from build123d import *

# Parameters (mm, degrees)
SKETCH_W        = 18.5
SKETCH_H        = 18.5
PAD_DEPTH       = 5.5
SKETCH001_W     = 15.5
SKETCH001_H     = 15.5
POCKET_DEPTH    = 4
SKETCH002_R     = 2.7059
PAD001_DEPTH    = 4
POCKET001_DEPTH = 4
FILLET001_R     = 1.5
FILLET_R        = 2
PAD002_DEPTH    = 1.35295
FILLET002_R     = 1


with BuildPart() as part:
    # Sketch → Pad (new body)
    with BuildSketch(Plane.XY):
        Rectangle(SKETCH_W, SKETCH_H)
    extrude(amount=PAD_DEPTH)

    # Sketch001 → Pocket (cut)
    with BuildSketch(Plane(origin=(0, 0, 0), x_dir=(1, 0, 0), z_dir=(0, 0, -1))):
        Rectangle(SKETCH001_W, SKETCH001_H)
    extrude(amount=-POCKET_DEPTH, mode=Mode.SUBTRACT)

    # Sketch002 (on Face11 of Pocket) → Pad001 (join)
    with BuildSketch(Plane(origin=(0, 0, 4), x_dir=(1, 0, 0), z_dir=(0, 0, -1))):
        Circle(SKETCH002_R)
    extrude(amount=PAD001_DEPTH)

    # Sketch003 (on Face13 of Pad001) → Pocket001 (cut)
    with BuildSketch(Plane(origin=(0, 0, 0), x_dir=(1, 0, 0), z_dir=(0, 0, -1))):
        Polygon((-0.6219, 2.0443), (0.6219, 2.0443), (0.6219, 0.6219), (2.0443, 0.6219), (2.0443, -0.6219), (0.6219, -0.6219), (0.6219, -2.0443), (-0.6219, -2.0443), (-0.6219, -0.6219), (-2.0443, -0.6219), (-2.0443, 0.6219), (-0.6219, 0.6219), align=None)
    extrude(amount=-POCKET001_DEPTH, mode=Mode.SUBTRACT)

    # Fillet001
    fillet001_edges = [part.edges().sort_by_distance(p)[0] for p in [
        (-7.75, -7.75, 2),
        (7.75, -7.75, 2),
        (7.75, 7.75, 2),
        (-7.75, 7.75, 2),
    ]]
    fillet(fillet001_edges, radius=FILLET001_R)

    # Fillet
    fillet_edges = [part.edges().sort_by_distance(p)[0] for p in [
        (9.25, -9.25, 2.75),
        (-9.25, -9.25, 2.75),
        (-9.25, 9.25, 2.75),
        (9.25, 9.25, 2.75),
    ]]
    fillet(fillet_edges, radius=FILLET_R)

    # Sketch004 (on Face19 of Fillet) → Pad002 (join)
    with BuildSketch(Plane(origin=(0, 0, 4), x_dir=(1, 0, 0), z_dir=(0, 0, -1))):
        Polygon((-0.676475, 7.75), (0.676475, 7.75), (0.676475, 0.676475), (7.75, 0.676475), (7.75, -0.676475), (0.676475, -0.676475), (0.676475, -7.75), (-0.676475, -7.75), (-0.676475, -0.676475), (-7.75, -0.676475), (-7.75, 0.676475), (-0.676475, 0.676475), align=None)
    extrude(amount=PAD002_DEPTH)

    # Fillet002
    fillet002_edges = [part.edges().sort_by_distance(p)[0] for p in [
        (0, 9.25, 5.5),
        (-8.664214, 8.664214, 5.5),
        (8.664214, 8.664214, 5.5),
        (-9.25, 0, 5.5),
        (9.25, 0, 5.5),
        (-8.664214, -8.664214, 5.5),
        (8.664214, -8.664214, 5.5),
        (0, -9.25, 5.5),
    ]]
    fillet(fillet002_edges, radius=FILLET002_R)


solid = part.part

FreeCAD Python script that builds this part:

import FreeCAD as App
import Part
import Sketcher
from FreeCAD import Vector
Q = App.Units.Quantity


def edges_at(feature, points):
    """Names of the edges that pass closest to the given points."""
    edges = feature.Shape.Edges
    near = lambda p: min(range(len(edges)), key=lambda i: edges[i].distToShape(Part.Vertex(*p))[0])
    return sorted({f"Edge{near(p) + 1}" for p in points})

doc = App.newDocument("Part")
body = doc.addObject("PartDesign::Body", "Body")

# Sketch on XY plane
sketch1 = body.newObject("Sketcher::SketchObject", "Sketch")
sketch1.AttachmentSupport = (doc.getObject("XY_Plane"), [""])
sketch1.MapMode = "FlatFace"
sketch1.addGeometry(Part.LineSegment(Vector(-9.25, 9.25, 0), Vector(-9.25, -9.25, 0)), False)
sketch1.addGeometry(Part.LineSegment(Vector(-9.25, -9.25, 0), Vector(9.25, -9.25, 0)), False)
sketch1.addGeometry(Part.LineSegment(Vector(9.25, -9.25, 0), Vector(9.25, 9.25, 0)), False)
sketch1.addGeometry(Part.LineSegment(Vector(9.25, 9.25, 0), Vector(-9.25, 9.25, 0)), False)
sketch1.addConstraint(Sketcher.Constraint("Coincident", 0, 2, 1, 1))
sketch1.addConstraint(Sketcher.Constraint("Coincident", 1, 2, 2, 1))
sketch1.addConstraint(Sketcher.Constraint("Coincident", 2, 2, 3, 1))
sketch1.addConstraint(Sketcher.Constraint("Coincident", 3, 2, 0, 1))
sketch1.addConstraint(Sketcher.Constraint("Vertical", 0))
sketch1.addConstraint(Sketcher.Constraint("Horizontal", 1))
sketch1.addConstraint(Sketcher.Constraint("Vertical", 2))
sketch1.addConstraint(Sketcher.Constraint("Horizontal", 3))
sketch1.addConstraint(Sketcher.Constraint("Symmetric", 0, 2, 2, 2, -1, 1))
sketch1.addConstraint(Sketcher.Constraint("Equal", 3, 0))
sketch1.addConstraint(Sketcher.Constraint("DistanceX", 1, 1, 1, 2, Q("18.5 mm")))
pad1 = body.newObject("PartDesign::Pad", "Pad")
pad1.Profile = sketch1
pad1.Length = 5.5

# Sketch on XY plane
sketch2 = body.newObject("Sketcher::SketchObject", "Sketch001")
sketch2.AttachmentSupport = (doc.getObject("XY_Plane"), [""])
sketch2.MapMode = "FlatFace"
sketch2.addGeometry(Part.LineSegment(Vector(-7.75, -7.75, 0), Vector(-7.75, 7.75, 0)), False)
sketch2.addGeometry(Part.LineSegment(Vector(-7.75, 7.75, 0), Vector(7.75, 7.75, 0)), False)
sketch2.addGeometry(Part.LineSegment(Vector(7.75, 7.75, 0), Vector(7.75, -7.75, 0)), False)
sketch2.addGeometry(Part.LineSegment(Vector(7.75, -7.75, 0), Vector(-7.75, -7.75, 0)), False)
sketch2.addConstraint(Sketcher.Constraint("Coincident", 0, 2, 1, 1))
sketch2.addConstraint(Sketcher.Constraint("Coincident", 1, 2, 2, 1))
sketch2.addConstraint(Sketcher.Constraint("Coincident", 2, 2, 3, 1))
sketch2.addConstraint(Sketcher.Constraint("Coincident", 3, 2, 0, 1))
sketch2.addConstraint(Sketcher.Constraint("Vertical", 0))
sketch2.addConstraint(Sketcher.Constraint("Horizontal", 1))
sketch2.addConstraint(Sketcher.Constraint("Vertical", 2))
sketch2.addConstraint(Sketcher.Constraint("Horizontal", 3))
sketch2.addConstraint(Sketcher.Constraint("Symmetric", 0, 2, 2, 2, -1, 1))
sketch2.addConstraint(Sketcher.Constraint("Equal", 3, 0))
sketch2.addConstraint(Sketcher.Constraint("DistanceX", 1, 1, 1, 2, Q("15.5 mm")))
pocket1 = body.newObject("PartDesign::Pocket", "Pocket")
pocket1.Profile = sketch2
pocket1.Length = 4
pocket1.Reversed = True

# Sketch on XY plane
sketch3 = body.newObject("Sketcher::SketchObject", "Sketch002")
sketch3.AttachmentSupport = (doc.getObject("XY_Plane"), [""])
sketch3.MapMode = "FlatFace"
sketch3.AttachmentOffset = App.Placement(Vector(0, 0, 4), App.Rotation())
sketch3.addGeometry(Part.Circle(Vector(0, 0, 0), Vector(0, 0, 1), 2.7059), False)
sketch3.addConstraint(Sketcher.Constraint("Coincident", 0, 3, -1, 1))
sketch3.addConstraint(Sketcher.Constraint("Diameter", 0, Q("5.4118 mm")))
pad2 = body.newObject("PartDesign::Pad", "Pad001")
pad2.Profile = sketch3
pad2.Length = 4
pad2.Reversed = True

# Sketch on XY plane
sketch4 = body.newObject("Sketcher::SketchObject", "Sketch003")
sketch4.AttachmentSupport = (doc.getObject("XY_Plane"), [""])
sketch4.MapMode = "FlatFace"
sketch4.addGeometry(Part.LineSegment(Vector(0.6219, -2.0443, 0), Vector(-0.6219, -2.0443, 0)), False)
sketch4.addGeometry(Part.LineSegment(Vector(-0.6219, -2.0443, 0), Vector(-0.6219, -0.6219, 0)), False)
sketch4.addGeometry(Part.LineSegment(Vector(-0.6219, -0.6219, 0), Vector(-2.0443, -0.6219, 0)), False)
sketch4.addGeometry(Part.LineSegment(Vector(-2.0443, -0.6219, 0), Vector(-2.0443, 0.6219, 0)), False)
sketch4.addGeometry(Part.LineSegment(Vector(-2.0443, 0.6219, 0), Vector(-0.6219, 0.6219, 0)), False)
sketch4.addGeometry(Part.LineSegment(Vector(-0.6219, 0.6219, 0), Vector(-0.6219, 2.0443, 0)), False)
sketch4.addGeometry(Part.LineSegment(Vector(-0.6219, 2.0443, 0), Vector(0.6219, 2.0443, 0)), False)
sketch4.addGeometry(Part.LineSegment(Vector(0.6219, 2.0443, 0), Vector(0.6219, 0.6219, 0)), False)
sketch4.addGeometry(Part.LineSegment(Vector(0.6219, 0.6219, 0), Vector(2.0443, 0.6219, 0)), False)
sketch4.addGeometry(Part.LineSegment(Vector(2.0443, 0.6219, 0), Vector(2.0443, -0.6219, 0)), False)
sketch4.addGeometry(Part.LineSegment(Vector(2.0443, -0.6219, 0), Vector(0.6219, -0.6219, 0)), False)
sketch4.addGeometry(Part.LineSegment(Vector(0.6219, -0.6219, 0), Vector(0.6219, -2.0443, 0)), False)
sketch4.addConstraint(Sketcher.Constraint("Coincident", 0, 2, 1, 1))
sketch4.addConstraint(Sketcher.Constraint("Coincident", 1, 2, 2, 1))
sketch4.addConstraint(Sketcher.Constraint("Coincident", 2, 2, 3, 1))
sketch4.addConstraint(Sketcher.Constraint("Coincident", 3, 2, 4, 1))
sketch4.addConstraint(Sketcher.Constraint("Coincident", 4, 2, 5, 1))
sketch4.addConstraint(Sketcher.Constraint("Coincident", 5, 2, 6, 1))
sketch4.addConstraint(Sketcher.Constraint("Coincident", 6, 2, 7, 1))
sketch4.addConstraint(Sketcher.Constraint("Coincident", 7, 2, 8, 1))
sketch4.addConstraint(Sketcher.Constraint("Coincident", 8, 2, 9, 1))
sketch4.addConstraint(Sketcher.Constraint("Coincident", 9, 2, 10, 1))
sketch4.addConstraint(Sketcher.Constraint("Coincident", 10, 2, 11, 1))
sketch4.addConstraint(Sketcher.Constraint("Coincident", 11, 2, 0, 1))
sketch4.addConstraint(Sketcher.Constraint("Horizontal", 0))
sketch4.addConstraint(Sketcher.Constraint("Vertical", 1))
sketch4.addConstraint(Sketcher.Constraint("Horizontal", 2))
sketch4.addConstraint(Sketcher.Constraint("Vertical", 3))
sketch4.addConstraint(Sketcher.Constraint("Horizontal", 4))
sketch4.addConstraint(Sketcher.Constraint("Vertical", 5))
sketch4.addConstraint(Sketcher.Constraint("Horizontal", 6))
sketch4.addConstraint(Sketcher.Constraint("Vertical", 7))
sketch4.addConstraint(Sketcher.Constraint("Horizontal", 8))
sketch4.addConstraint(Sketcher.Constraint("Vertical", 9))
sketch4.addConstraint(Sketcher.Constraint("Horizontal", 10))
sketch4.addConstraint(Sketcher.Constraint("Vertical", 11))
sketch4.addConstraint(Sketcher.Constraint("Symmetric", 0, 2, 6, 2, -1, 1))
sketch4.addConstraint(Sketcher.Constraint("Symmetric", 2, 2, 8, 2, -1, 1))
sketch4.addConstraint(Sketcher.Constraint("Symmetric", 4, 2, 10, 2, -1, 1))
sketch4.addConstraint(Sketcher.Constraint("Symmetric", 4, 2, 7, 2, -2))
sketch4.addConstraint(Sketcher.Constraint("Equal", 10, 1))
sketch4.addConstraint(Sketcher.Constraint("Equal", 6, 3))
sketch4.addConstraint(Sketcher.Constraint("DistanceX", 0, 2, 0, 1, Q("1.2438 mm")))
sketch4.addConstraint(Sketcher.Constraint("DistanceX", 2, 2, 2, 1, Q("1.4224 mm")))
pocket2 = body.newObject("PartDesign::Pocket", "Pocket001")
pocket2.Profile = sketch4
pocket2.Length = 4
pocket2.Reversed = True
doc.recompute()

fillet = body.newObject("PartDesign::Fillet", "Fillet")
fillet.Base = (pocket2, edges_at(pocket2, [
    (-7.75, -7.75, 2),
    (7.75, -7.75, 2),
    (7.75, 7.75, 2),
    (-7.75, 7.75, 2),
]))
fillet.Radius = 1.5
doc.recompute()

fillet2 = body.newObject("PartDesign::Fillet", "Fillet001")
fillet2.Base = (fillet, edges_at(fillet, [
    (9.25, -9.25, 2.75),
    (-9.25, -9.25, 2.75),
    (-9.25, 9.25, 2.75),
    (9.25, 9.25, 2.75),
]))
fillet2.Radius = 2

# Sketch on XY plane
sketch5 = body.newObject("Sketcher::SketchObject", "Sketch004")
sketch5.AttachmentSupport = (doc.getObject("XY_Plane"), [""])
sketch5.MapMode = "FlatFace"
sketch5.AttachmentOffset = App.Placement(Vector(0, 0, 4), App.Rotation())
sketch5.addGeometry(Part.LineSegment(Vector(0.676475, -7.75, 0), Vector(-0.676475, -7.75, 0)), False)
sketch5.addGeometry(Part.LineSegment(Vector(-0.676475, -7.75, 0), Vector(-0.676475, -0.676475, 0)), False)
sketch5.addGeometry(Part.LineSegment(Vector(-0.676475, -0.676475, 0), Vector(-7.75, -0.676475, 0)), False)
sketch5.addGeometry(Part.LineSegment(Vector(-7.75, -0.676475, 0), Vector(-7.75, 0.676475, 0)), False)
sketch5.addGeometry(Part.LineSegment(Vector(-7.75, 0.676475, 0), Vector(-0.676475, 0.676475, 0)), False)
sketch5.addGeometry(Part.LineSegment(Vector(-0.676475, 0.676475, 0), Vector(-0.676475, 7.75, 0)), False)
sketch5.addGeometry(Part.LineSegment(Vector(-0.676475, 7.75, 0), Vector(0.676475, 7.75, 0)), False)
sketch5.addGeometry(Part.LineSegment(Vector(0.676475, 7.75, 0), Vector(0.676475, 0.676475, 0)), False)
sketch5.addGeometry(Part.LineSegment(Vector(0.676475, 0.676475, 0), Vector(7.75, 0.676475, 0)), False)
sketch5.addGeometry(Part.LineSegment(Vector(7.75, 0.676475, 0), Vector(7.75, -0.676475, 0)), False)
sketch5.addGeometry(Part.LineSegment(Vector(7.75, -0.676475, 0), Vector(0.676475, -0.676475, 0)), False)
sketch5.addGeometry(Part.LineSegment(Vector(0.676475, -0.676475, 0), Vector(0.676475, -7.75, 0)), False)
sketch5.addConstraint(Sketcher.Constraint("Coincident", 0, 2, 1, 1))
sketch5.addConstraint(Sketcher.Constraint("Coincident", 1, 2, 2, 1))
sketch5.addConstraint(Sketcher.Constraint("Coincident", 2, 2, 3, 1))
sketch5.addConstraint(Sketcher.Constraint("Coincident", 3, 2, 4, 1))
sketch5.addConstraint(Sketcher.Constraint("Coincident", 4, 2, 5, 1))
sketch5.addConstraint(Sketcher.Constraint("Coincident", 5, 2, 6, 1))
sketch5.addConstraint(Sketcher.Constraint("Coincident", 6, 2, 7, 1))
sketch5.addConstraint(Sketcher.Constraint("Coincident", 7, 2, 8, 1))
sketch5.addConstraint(Sketcher.Constraint("Coincident", 8, 2, 9, 1))
sketch5.addConstraint(Sketcher.Constraint("Coincident", 9, 2, 10, 1))
sketch5.addConstraint(Sketcher.Constraint("Coincident", 10, 2, 11, 1))
sketch5.addConstraint(Sketcher.Constraint("Coincident", 11, 2, 0, 1))
sketch5.addConstraint(Sketcher.Constraint("Horizontal", 0))
sketch5.addConstraint(Sketcher.Constraint("Vertical", 1))
sketch5.addConstraint(Sketcher.Constraint("Horizontal", 2))
sketch5.addConstraint(Sketcher.Constraint("Vertical", 3))
sketch5.addConstraint(Sketcher.Constraint("Horizontal", 4))
sketch5.addConstraint(Sketcher.Constraint("Vertical", 5))
sketch5.addConstraint(Sketcher.Constraint("Horizontal", 6))
sketch5.addConstraint(Sketcher.Constraint("Vertical", 7))
sketch5.addConstraint(Sketcher.Constraint("Horizontal", 8))
sketch5.addConstraint(Sketcher.Constraint("Vertical", 9))
sketch5.addConstraint(Sketcher.Constraint("Horizontal", 10))
sketch5.addConstraint(Sketcher.Constraint("Vertical", 11))
sketch5.addConstraint(Sketcher.Constraint("Symmetric", 0, 2, 6, 2, -1, 1))
sketch5.addConstraint(Sketcher.Constraint("Symmetric", 2, 2, 8, 2, -1, 1))
sketch5.addConstraint(Sketcher.Constraint("Symmetric", 4, 2, 10, 2, -1, 1))
sketch5.addConstraint(Sketcher.Constraint("Symmetric", 4, 2, 7, 2, -2))
sketch5.addConstraint(Sketcher.Constraint("Equal", 10, 1))
sketch5.addConstraint(Sketcher.Constraint("Equal", 6, 3))
sketch5.addConstraint(Sketcher.Constraint("DistanceY", 0, 2, 5, 2, Q("15.5 mm")))
sketch5.addConstraint(Sketcher.Constraint("DistanceX", 0, 2, 0, 1, Q("1.35295 mm")))
pad3 = body.newObject("PartDesign::Pad", "Pad002")
pad3.Profile = sketch5
pad3.Length = 1.35295
pad3.Reversed = True
doc.recompute()

fillet3 = body.newObject("PartDesign::Fillet", "Fillet002")
fillet3.Base = (pad3, edges_at(pad3, [
    (0, 9.25, 5.5),
    (-8.664, 8.664, 5.5),
    (8.664, 8.664, 5.5),
    (-9.25, 0, 5.5),
    (9.25, 0, 5.5),
    (-8.664, -8.664, 5.5),
    (8.664, -8.664, 5.5),
    (0, -9.25, 5.5),
]))
fillet3.Radius = 1

doc.recompute()
